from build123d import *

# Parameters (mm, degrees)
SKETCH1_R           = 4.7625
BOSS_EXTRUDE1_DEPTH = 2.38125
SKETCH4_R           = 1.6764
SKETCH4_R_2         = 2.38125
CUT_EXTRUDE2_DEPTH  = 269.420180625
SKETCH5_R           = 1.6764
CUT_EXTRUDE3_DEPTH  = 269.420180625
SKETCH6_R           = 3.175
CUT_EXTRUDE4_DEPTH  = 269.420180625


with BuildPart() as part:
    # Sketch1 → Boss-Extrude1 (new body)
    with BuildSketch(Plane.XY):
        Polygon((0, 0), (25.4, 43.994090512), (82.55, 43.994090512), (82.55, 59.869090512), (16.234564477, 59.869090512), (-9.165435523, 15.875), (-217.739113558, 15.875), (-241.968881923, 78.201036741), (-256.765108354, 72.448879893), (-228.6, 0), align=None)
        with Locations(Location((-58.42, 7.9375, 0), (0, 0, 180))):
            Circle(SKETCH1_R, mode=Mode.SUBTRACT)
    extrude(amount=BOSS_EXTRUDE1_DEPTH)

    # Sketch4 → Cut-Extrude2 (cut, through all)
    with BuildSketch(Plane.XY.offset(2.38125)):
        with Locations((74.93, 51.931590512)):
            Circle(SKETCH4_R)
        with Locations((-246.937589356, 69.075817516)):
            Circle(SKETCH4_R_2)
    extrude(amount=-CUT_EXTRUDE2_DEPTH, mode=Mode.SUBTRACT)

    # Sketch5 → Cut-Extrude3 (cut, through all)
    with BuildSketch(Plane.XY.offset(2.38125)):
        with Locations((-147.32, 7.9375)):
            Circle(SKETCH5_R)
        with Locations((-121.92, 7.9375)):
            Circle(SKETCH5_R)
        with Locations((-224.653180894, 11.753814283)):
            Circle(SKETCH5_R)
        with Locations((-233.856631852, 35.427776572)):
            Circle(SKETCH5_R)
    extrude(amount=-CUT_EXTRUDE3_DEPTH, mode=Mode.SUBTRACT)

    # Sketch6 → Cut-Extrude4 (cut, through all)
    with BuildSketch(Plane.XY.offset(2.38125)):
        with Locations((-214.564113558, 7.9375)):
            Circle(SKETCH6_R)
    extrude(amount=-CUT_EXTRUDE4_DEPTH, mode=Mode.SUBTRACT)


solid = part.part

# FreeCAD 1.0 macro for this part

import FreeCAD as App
import Part
import Sketcher
Q = App.Units.Quantity


def add_polygon(sketch, points):
    """Adds a closed chain of lines whose ends are joined by coincident constraints."""
    first, n = sketch.GeometryCount, len(points)
    for a, b in zip(points, points[1:] + points[:1]):
        sketch.addGeometry(Part.LineSegment(App.Vector(*a, 0), App.Vector(*b, 0)), False)
    for i in range(n):
        sketch.addConstraint(Sketcher.Constraint("Coincident", first + i, 2, first + (i + 1) % n, 1))

doc = App.newDocument("Part")
body = doc.addObject("PartDesign::Body", "Body")

# Sketch on XY plane
sketch1 = doc.addObject("Sketcher::SketchObject", "Sketch")
body.addObject(sketch1)
sketch1.AttachmentSupport = (doc.XY_Plane, [""])
sketch1.MapMode = "FlatFace"
add_polygon(sketch1, [(0, 0), (25.4, 43.994091), (82.55, 43.994091), (82.55, 59.869091), (16.234564, 59.869091), (-9.165436, 15.875), (-217.739114, 15.875), (-241.968882, 78.201037), (-256.765108, 72.44888), (-228.6, 0)])  # lines 0-9
sketch1.addGeometry(Part.Circle(App.Vector(-58.42, 7.9375, 0), App.Vector(0, 0, 1), 4.7625), False)  # 10
sketch1.addConstraint([
    Sketcher.Constraint("Horizontal", 1),
    Sketcher.Constraint("Vertical", 2),
    Sketcher.Constraint("Horizontal", 3),
    Sketcher.Constraint("Horizontal", 5),
    Sketcher.Constraint("Horizontal", 9),
    Sketcher.Constraint("Coincident", 9, 2, -1, 1),
    Sketcher.Constraint("Parallel", 0, 4),
    Sketcher.Constraint("Perpendicular", 6, 7),
    Sketcher.Constraint("Perpendicular", 7, 8),
    Sketcher.Constraint("Equal", 0, 4),
    Sketcher.Constraint("DistanceX", 9, 1, 9, 2, Q("9 in")),
    Sketcher.Constraint("Distance", 0, Q("2 in")),
    Sketcher.Constraint("Diameter", 10, Q("0.375 in")),
    Sketcher.Constraint("DistanceX", -1, 1, 0, 2, Q("1 in")),
    Sketcher.Constraint("DistanceX", 1, 1, 1, 2, Q("2.25 in")),
    Sketcher.Constraint("DistanceX", 10, 3, -1, 1, Q("2.3 in")),
    Sketcher.Constraint("DistanceY", 2, 1, 2, 2, Q("0.625 in")),
    Sketcher.Constraint("Distance", 7, Q("0.625 in")),
    Sketcher.Constraint("DistanceY", -1, 1, 10, 3, Q("0.3125 in")),
    Sketcher.Constraint("DistanceX", 5, 2, 5, 1, Q("208.573678 mm")),
    Sketcher.Constraint("DistanceX", 3, 2, 3, 1, Q("66.315436 mm")),
    Sketcher.Constraint("DistanceX", 6, 2, -1, 1, Q("241.968882 mm")),
])
pad1 = doc.addObject("PartDesign::Pad", "Pad")
body.addObject(pad1)
pad1.Profile = sketch1
pad1.Length = Q("0.09375 in")

# Sketch on XY plane
sketch2 = doc.addObject("Sketcher::SketchObject", "Sketch001")
body.addObject(sketch2)
sketch2.AttachmentSupport = (doc.XY_Plane, [""])
sketch2.MapMode = "FlatFace"
sketch2.AttachmentOffset = App.Placement(App.Vector(0, 0, 0.09375 * 25.4), App.Rotation())
sketch2.addGeometry([
    Part.Circle(App.Vector(74.93, 51.931591, 0), App.Vector(0, 0, 1), 1.6764),
    Part.Circle(App.Vector(-246.937589, 69.075818, 0), App.Vector(0, 0, 1), 2.38125),
], False)
sketch2.addConstraint([
    Sketcher.Constraint("Diameter", 0, Q("0.132 in")),
    Sketcher.Constraint("Diameter", 1, Q("0.1875 in")),
    Sketcher.Constraint("DistanceX", -1, 1, 0, 3, Q("2.95 in")),
    Sketcher.Constraint("DistanceY", -1, 1, 0, 3, Q("51.931591 mm")),
    Sketcher.Constraint("DistanceX", 1, 3, -1, 1, Q("246.937589 mm")),
    Sketcher.Constraint("DistanceY", -1, 1, 1, 3, Q("69.075818 mm")),
])
pocket1 = doc.addObject("PartDesign::Pocket", "Pocket")
body.addObject(pocket1)
pocket1.Profile = sketch2
pocket1.Type = "ThroughAll"

# Sketch on XY plane
sketch3 = doc.addObject("Sketcher::SketchObject", "Sketch002")
body.addObject(sketch3)
sketch3.AttachmentSupport = (doc.XY_Plane, [""])
sketch3.MapMode = "FlatFace"
sketch3.AttachmentOffset = App.Placement(App.Vector(0, 0, 0.09375 * 25.4), App.Rotation())
sketch3.addGeometry([
    Part.Circle(App.Vector(-147.32, 7.9375, 0), App.Vector(0, 0, 1), 1.6764),
    Part.Circle(App.Vector(-121.92, 7.9375, 0), App.Vector(0, 0, 1), 1.6764),
    Part.Circle(App.Vector(-224.653181, 11.753814, 0), App.Vector(0, 0, 1), 1.6764),
    Part.Circle(App.Vector(-233.856632, 35.427777, 0), App.Vector(0, 0, 1), 1.6764),
], False)
sketch3.addConstraint([
    Sketcher.Constraint("Equal", 0, 1),
    Sketcher.Constraint("Equal", 1, 2),
    Sketcher.Constraint("Equal", 2, 3),
    Sketcher.Constraint("Horizontal", 0, 3, 1, 3),
    Sketcher.Constraint("Diameter", 0, Q("0.132 in")),
    Sketcher.Constraint("DistanceX", 0, 3, 1, 3, Q("1 in")),
    Sketcher.Constraint("DistanceX", 0, 3, -1, 1, Q("5.8 in")),
    Sketcher.Constraint("DistanceY", -1, 1, 0, 3, Q("0.3125 in")),
    Sketcher.Constraint("DistanceX", 2, 3, -1, 1, Q("224.653181 mm")),
    Sketcher.Constraint("DistanceX", 3, 3, -1, 1, Q("233.856632 mm")),
    Sketcher.Constraint("DistanceY", -1, 1, 2, 3, Q("11.753814 mm")),
    Sketcher.Constraint("DistanceY", -1, 1, 3, 3, Q("35.427777 mm")),
])
pocket2 = doc.addObject("PartDesign::Pocket", "Pocket001")
body.addObject(pocket2)
pocket2.Profile = sketch3
pocket2.Type = "ThroughAll"

# Sketch on XY plane
sketch4 = doc.addObject("Sketcher::SketchObject", "Sketch003")
body.addObject(sketch4)
sketch4.AttachmentSupport = (doc.XY_Plane, [""])
sketch4.MapMode = "FlatFace"
sketch4.AttachmentOffset = App.Placement(App.Vector(0, 0, 0.09375 * 25.4), App.Rotation())
sketch4.addGeometry(Part.Circle(App.Vector(-214.564114, 7.9375, 0), App.Vector(0, 0, 1), 3.175), False)
sketch4.addConstraint([
    Sketcher.Constraint("Diameter", 0, Q("0.25 in")),
    Sketcher.Constraint("DistanceY", -1, 1, 0, 3, Q("0.3125 in")),
    Sketcher.Constraint("DistanceX", 0, 3, -1, 1, Q("214.564114 mm")),
])
pocket3 = doc.addObject("PartDesign::Pocket", "Pocket002")
body.addObject(pocket3)
pocket3.Profile = sketch4
pocket3.Type = "ThroughAll"

doc.recompute()
